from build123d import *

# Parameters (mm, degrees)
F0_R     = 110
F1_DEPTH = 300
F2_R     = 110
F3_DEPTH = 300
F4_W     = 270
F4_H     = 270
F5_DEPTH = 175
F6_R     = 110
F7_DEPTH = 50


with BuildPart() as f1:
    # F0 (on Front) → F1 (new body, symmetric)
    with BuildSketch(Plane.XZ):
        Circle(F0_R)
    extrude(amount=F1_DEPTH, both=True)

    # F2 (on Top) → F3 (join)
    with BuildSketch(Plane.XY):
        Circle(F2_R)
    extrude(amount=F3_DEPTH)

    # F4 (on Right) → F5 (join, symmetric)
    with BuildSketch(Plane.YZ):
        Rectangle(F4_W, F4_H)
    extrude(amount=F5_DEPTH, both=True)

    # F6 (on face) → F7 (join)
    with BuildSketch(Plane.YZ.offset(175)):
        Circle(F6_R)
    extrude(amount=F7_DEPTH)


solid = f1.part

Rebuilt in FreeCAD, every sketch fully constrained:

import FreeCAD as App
import Part
import Sketcher

V = App.Vector

doc = App.newDocument("Part")
body = doc.addObject("PartDesign::Body", "Body")

sketch1 = doc.addObject("Sketcher::SketchObject", "Sketch")
body.addObject(sketch1)
sketch1.AttachmentSupport = (doc.XZ_Plane, [""])
sketch1.MapMode = "FlatFace"
sketch1.addGeometry(Part.Circle(V(0, 0, 0), V(0, 0, 1), 110), False)
sketch1.addConstraint([
    Sketcher.Constraint("Coincident", 0, 3, -1, 1),
    Sketcher.Constraint("Diameter", 0, 220.0),
])
pad1 = doc.addObject("PartDesign::Pad", "Pad")
body.addObject(pad1)
pad1.Profile = sketch1
pad1.Length = 600
pad1.Midplane = True

sketch2 = doc.addObject("Sketcher::SketchObject", "Sketch001")
body.addObject(sketch2)
sketch2.AttachmentSupport = (doc.XY_Plane, [""])
sketch2.MapMode = "FlatFace"
sketch2.addGeometry(Part.Circle(V(0, 0, 0), V(0, 0, 1), 110), False)
sketch2.addConstraint([
    Sketcher.Constraint("Coincident", 0, 3, -1, 1),
    Sketcher.Constraint("Diameter", 0, 220.0),
])
pad2 = doc.addObject("PartDesign::Pad", "Pad001")
body.addObject(pad2)
pad2.Profile = sketch2
pad2.Length = 300

sketch3 = doc.addObject("Sketcher::SketchObject", "Sketch002")
body.addObject(sketch3)
sketch3.AttachmentSupport = (doc.YZ_Plane, [""])
sketch3.MapMode = "FlatFace"
sketch3.addGeometry([
    Part.LineSegment(V(-135, 135, 0), V(-135, -135, 0)),
    Part.LineSegment(V(-135, -135, 0), V(135, -135, 0)),
    Part.LineSegment(V(135, -135, 0), V(135, 135, 0)),
    Part.LineSegment(V(135, 135, 0), V(-135, 135, 0)),
], False)
sketch3.addConstraint([
    Sketcher.Constraint("Coincident", 0, 2, 1, 1),
    Sketcher.Constraint("Coincident", 1, 2, 2, 1),
    Sketcher.Constraint("Coincident", 2, 2, 3, 1),
    Sketcher.Constraint("Coincident", 3, 2, 0, 1),
    Sketcher.Constraint("Vertical", 0),
    Sketcher.Constraint("Horizontal", 1),
    Sketcher.Constraint("Vertical", 2),
    Sketcher.Constraint("Horizontal", 3),
    Sketcher.Constraint("Symmetric", 0, 2, 2, 2, -1, 1),
    Sketcher.Constraint("Equal", 3, 0),
    Sketcher.Constraint("DistanceX", 1, 1, 1, 2, 270.0),
])
pad3 = doc.addObject("PartDesign::Pad", "Pad002")
body.addObject(pad3)
pad3.Profile = sketch3
pad3.Length = 350
pad3.Midplane = True

sketch4 = doc.addObject("Sketcher::SketchObject", "Sketch003")
body.addObject(sketch4)
sketch4.AttachmentSupport = (doc.YZ_Plane, [""])
sketch4.MapMode = "FlatFace"
sketch4.AttachmentOffset = App.Placement(V(0, 0, 175), App.Rotation())
sketch4.addGeometry(Part.Circle(V(0, 0, 0), V(0, 0, 1), 110), False)
sketch4.addConstraint([
    Sketcher.Constraint("Coincident", 0, 3, -1, 1),
    Sketcher.Constraint("Diameter", 0, 220.0),
])
pad4 = doc.addObject("PartDesign::Pad", "Pad003")
body.addObject(pad4)
pad4.Profile = sketch4
pad4.Length = 50

doc.recompute()
